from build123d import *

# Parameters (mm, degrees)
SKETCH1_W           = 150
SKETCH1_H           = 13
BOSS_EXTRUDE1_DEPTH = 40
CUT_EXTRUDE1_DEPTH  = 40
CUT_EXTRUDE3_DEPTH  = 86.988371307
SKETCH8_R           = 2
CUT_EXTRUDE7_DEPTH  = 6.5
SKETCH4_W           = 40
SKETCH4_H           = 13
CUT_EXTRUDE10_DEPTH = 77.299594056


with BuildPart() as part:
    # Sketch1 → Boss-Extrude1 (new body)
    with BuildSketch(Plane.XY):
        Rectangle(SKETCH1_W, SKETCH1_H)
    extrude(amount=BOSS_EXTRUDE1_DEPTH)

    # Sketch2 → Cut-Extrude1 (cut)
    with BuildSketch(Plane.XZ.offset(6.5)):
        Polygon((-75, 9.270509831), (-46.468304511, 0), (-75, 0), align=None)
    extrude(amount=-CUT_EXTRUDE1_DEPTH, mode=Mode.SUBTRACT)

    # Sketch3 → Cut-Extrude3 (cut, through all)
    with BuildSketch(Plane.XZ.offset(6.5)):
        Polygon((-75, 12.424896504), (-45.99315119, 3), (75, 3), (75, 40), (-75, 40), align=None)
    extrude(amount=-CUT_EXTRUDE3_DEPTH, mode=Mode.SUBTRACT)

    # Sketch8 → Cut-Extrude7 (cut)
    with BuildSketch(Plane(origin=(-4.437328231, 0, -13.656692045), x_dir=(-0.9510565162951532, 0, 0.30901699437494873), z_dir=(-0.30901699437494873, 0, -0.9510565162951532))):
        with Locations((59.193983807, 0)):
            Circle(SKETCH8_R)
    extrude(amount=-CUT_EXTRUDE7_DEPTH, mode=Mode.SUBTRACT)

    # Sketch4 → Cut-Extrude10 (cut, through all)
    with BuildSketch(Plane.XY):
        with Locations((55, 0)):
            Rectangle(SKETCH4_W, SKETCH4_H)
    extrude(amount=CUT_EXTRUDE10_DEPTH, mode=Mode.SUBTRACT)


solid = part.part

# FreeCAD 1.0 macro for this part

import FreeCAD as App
import Part
import Sketcher
Q = App.Units.Quantity

doc = App.newDocument("Part")
params = doc.addObject("Spreadsheet::Sheet", "Params")
for row, (alias, value) in enumerate([
    ("sketch1_width", "150 mm"),
    ("sketch1_height", "13 mm"),
    ("pad1_length", "40 mm"),
    ("sketch2_length", "30 mm"),
    ("pocket1_length", "40 mm"),
    ("sketch3_width", "150 mm"),
    ("sketch3_height", "37 mm"),
    ("sketch4_diameter", "4 mm"),
    ("pocket3_length", "6.5 mm"),
    ("sketch5_width", "40 mm"),
    ("sketch5_height", "13 mm"),
], start=1):
    params.set(f"A{row}", alias)
    params.set(f"B{row}", "=" + value)
    params.setAlias(f"B{row}", alias)

body = doc.addObject("PartDesign::Body", "Body")

# Sketch on XY plane
sketch1 = body.newObject("Sketcher::SketchObject", "Sketch")
sketch1.AttachmentSupport = (doc.getObject("XY_Plane"), [""])
sketch1.MapMode = "FlatFace"
sketch1.addGeometry(Part.LineSegment(App.Vector(-75, 6, 0), App.Vector(-75, -6, 0)), False)
sketch1.addGeometry(Part.LineSegment(App.Vector(-75, -6, 0), App.Vector(75, -6, 0)), False)
sketch1.addGeometry(Part.LineSegment(App.Vector(75, -6, 0), App.Vector(75, 6, 0)), False)
sketch1.addGeometry(Part.LineSegment(App.Vector(75, 6, 0), App.Vector(-75, 6, 0)), False)
sketch1.addConstraint(Sketcher.Constraint("Coincident", 0, 2, 1, 1))
sketch1.addConstraint(Sketcher.Constraint("Coincident", 1, 2, 2, 1))
sketch1.addConstraint(Sketcher.Constraint("Coincident", 2, 2, 3, 1))
sketch1.addConstraint(Sketcher.Constraint("Coincident", 3, 2, 0, 1))
sketch1.addConstraint(Sketcher.Constraint("Vertical", 0))
sketch1.addConstraint(Sketcher.Constraint("Horizontal", 1))
sketch1.addConstraint(Sketcher.Constraint("Vertical", 2))
sketch1.addConstraint(Sketcher.Constraint("Horizontal", 3))
sketch1.addConstraint(Sketcher.Constraint("Symmetric", 0, 2, 2, 2, -1, 1))
sketch1.addConstraint(Sketcher.Constraint("DistanceX", 1, 1, 1, 2, Q("150 mm")))
sketch1.addConstraint(Sketcher.Constraint("DistanceY", 0, 2, 0, 1, Q("13 mm")))
sketch1.setExpression("Constraints[9]", "Params.sketch1_width")
sketch1.setExpression("Constraints[10]", "Params.sketch1_height")
pad1 = body.newObject("PartDesign::Pad", "Pad")
pad1.Profile = sketch1
pad1.setExpression("Length", "Params.pad1_length")

# Sketch on XZ plane
sketch2 = body.newObject("Sketcher::SketchObject", "Sketch001")
sketch2.AttachmentSupport = (doc.getObject("XZ_Plane"), [""])
sketch2.MapMode = "FlatFace"
sketch2.AttachmentOffset = App.Placement(App.Vector(0, 0, 6.5), App.Rotation())
sketch2.addGeometry(Part.LineSegment(App.Vector(-46, 0, 0), App.Vector(-75, 9, 0)), False)
sketch2.addGeometry(Part.LineSegment(App.Vector(-75, 9, 0), App.Vector(-75, 0, 0)), False)
sketch2.addGeometry(Part.LineSegment(App.Vector(-75, 0, 0), App.Vector(-46, 0, 0)), False)
sketch2.addConstraint(Sketcher.Constraint("Coincident", 0, 2, 1, 1))
sketch2.addConstraint(Sketcher.Constraint("Coincident", 1, 2, 2, 1))
sketch2.addConstraint(Sketcher.Constraint("Coincident", 2, 2, 0, 1))
sketch2.addConstraint(Sketcher.Constraint("Vertical", 1))
sketch2.addConstraint(Sketcher.Constraint("Horizontal", 2))
sketch2.addConstraint(Sketcher.Constraint("PointOnObject", 1, 2, -1))
sketch2.addConstraint(Sketcher.Constraint("Angle", 0, Q("162 deg")))
sketch2.addConstraint(Sketcher.Constraint("Distance", 0, Q("30 mm")))
sketch2.addConstraint(Sketcher.Constraint("DistanceX", 0, 2, -1, 1, Q("75 mm")))
sketch2.setExpression("Constraints[7]", "Params.sketch2_length")
pocket1 = body.newObject("PartDesign::Pocket", "Pocket")
pocket1.Profile = sketch2
pocket1.setExpression("Length", "Params.pocket1_length")

# Sketch on XZ plane
sketch3 = body.newObject("Sketcher::SketchObject", "Sketch002")
sketch3.AttachmentSupport = (doc.getObject("XZ_Plane"), [""])
sketch3.MapMode = "FlatFace"
sketch3.AttachmentOffset = App.Placement(App.Vector(0, 0, 6.5), App.Rotation())
sketch3.addGeometry(Part.LineSegment(App.Vector(-75, 12, 0), App.Vector(-46, 3, 0)), False)
sketch3.addGeometry(Part.LineSegment(App.Vector(-46, 3, 0), App.Vector(75, 3, 0)), False)
sketch3.addGeometry(Part.LineSegment(App.Vector(75, 3, 0), App.Vector(75, 40, 0)), False)
sketch3.addGeometry(Part.LineSegment(App.Vector(75, 40, 0), App.Vector(-75, 40, 0)), False)
sketch3.addGeometry(Part.LineSegment(App.Vector(-75, 40, 0), App.Vector(-75, 12, 0)), False)
sketch3.addConstraint(Sketcher.Constraint("Coincident", 0, 2, 1, 1))
sketch3.addConstraint(Sketcher.Constraint("Coincident", 1, 2, 2, 1))
sketch3.addConstraint(Sketcher.Constraint("Coincident", 2, 2, 3, 1))
sketch3.addConstraint(Sketcher.Constraint("Coincident", 3, 2, 4, 1))
sketch3.addConstraint(Sketcher.Constraint("Coincident", 4, 2, 0, 1))
sketch3.addConstraint(Sketcher.Constraint("Horizontal", 1))
sketch3.addConstraint(Sketcher.Constraint("Vertical", 2))
sketch3.addConstraint(Sketcher.Constraint("Horizontal", 3))
sketch3.addConstraint(Sketcher.Constraint("Vertical", 4))
sketch3.addConstraint(Sketcher.Constraint("DistanceX", 3, 2, 3, 1, Q("150 mm")))
sketch3.addConstraint(Sketcher.Constraint("DistanceY", 2, 1, 2, 2, Q("37 mm")))
sketch3.addConstraint(Sketcher.Constraint("Angle", 0, Q("-18 deg")))
sketch3.addConstraint(Sketcher.Constraint("DistanceY", -1, 1, 0, 2, Q("3 mm")))
sketch3.addConstraint(Sketcher.Constraint("DistanceX", -1, 1, 1, 2, Q("75 mm")))
sketch3.addConstraint(Sketcher.Constraint("DistanceX", 1, 1, 1, 2, Q("120.993151 mm")))
sketch3.setExpression("Constraints[9]", "Params.sketch3_width")
sketch3.setExpression("Constraints[10]", "Params.sketch3_height")
pocket2 = body.newObject("PartDesign::Pocket", "Pocket001")
pocket2.Profile = sketch3
pocket2.Type = "ThroughAll"

# Sketch on an angled plane
sketch4 = body.newObject("Sketcher::SketchObject", "Sketch003")
sketch4.Placement = App.Placement(App.Vector(-4.437328, 0, -13.656692), App.Rotation(App.Vector(-0.951056516, 0, 0.309016994), App.Vector(0, 0.999999999, 0), App.Vector(-0.309016994, 0, -0.951056516), "ZXY"))
sketch4.addGeometry(Part.Circle(App.Vector(59.2, 0, 0), App.Vector(0, 0, 1), 2), False)
sketch4.addConstraint(Sketcher.Constraint("PointOnObject", 0, 3, -1))
sketch4.addConstraint(Sketcher.Constraint("Diameter", 0, Q("4 mm")))
sketch4.addConstraint(Sketcher.Constraint("DistanceX", -1, 1, 0, 3, Q("59.193984 mm")))
sketch4.setExpression("Constraints[1]", "Params.sketch4_diameter")
pocket3 = body.newObject("PartDesign::Pocket", "Pocket002")
pocket3.Profile = sketch4
pocket3.setExpression("Length", "Params.pocket3_length")

# Sketch on XY plane
sketch5 = body.newObject("Sketcher::SketchObject", "Sketch004")
sketch5.AttachmentSupport = (doc.getObject("XY_Plane"), [""])
sketch5.MapMode = "FlatFace"
sketch5.addGeometry(Part.LineSegment(App.Vector(35, 6, 0), App.Vector(35, -6, 0)), False)
sketch5.addGeometry(Part.LineSegment(App.Vector(35, -6, 0), App.Vector(75, -6, 0)), False)
sketch5.addGeometry(Part.LineSegment(App.Vector(75, -6, 0), App.Vector(75, 6, 0)), False)
sketch5.addGeometry(Part.LineSegment(App.Vector(75, 6, 0), App.Vector(35, 6, 0)), False)
sketch5.addConstraint(Sketcher.Constraint("Coincident", 0, 2, 1, 1))
sketch5.addConstraint(Sketcher.Constraint("Coincident", 1, 2, 2, 1))
sketch5.addConstraint(Sketcher.Constraint("Coincident", 2, 2, 3, 1))
sketch5.addConstraint(Sketcher.Constraint("Coincident", 3, 2, 0, 1))
sketch5.addConstraint(Sketcher.Constraint("Vertical", 0))
sketch5.addConstraint(Sketcher.Constraint("Horizontal", 1))
sketch5.addConstraint(Sketcher.Constraint("Vertical", 2))
sketch5.addConstraint(Sketcher.Constraint("Horizontal", 3))
sketch5.addConstraint(Sketcher.Constraint("DistanceX", 1, 1, 1, 2, Q("40 mm")))
sketch5.addConstraint(Sketcher.Constraint("DistanceY", 0, 2, 0, 1, Q("13 mm")))
sketch5.addConstraint(Sketcher.Constraint("DistanceX", -1, 1, 0, 2, Q("35 mm")))
sketch5.addConstraint(Sketcher.Constraint("DistanceY", 0, 2, -1, 1, Q("6.5 mm")))
sketch5.setExpression("Constraints[8]", "Params.sketch5_width")
sketch5.setExpression("Constraints[9]", "Params.sketch5_height")
pocket4 = body.newObject("PartDesign::Pocket", "Pocket003")
pocket4.Profile = sketch5
pocket4.Type = "ThroughAll"
pocket4.Reversed = True

doc.recompute()
